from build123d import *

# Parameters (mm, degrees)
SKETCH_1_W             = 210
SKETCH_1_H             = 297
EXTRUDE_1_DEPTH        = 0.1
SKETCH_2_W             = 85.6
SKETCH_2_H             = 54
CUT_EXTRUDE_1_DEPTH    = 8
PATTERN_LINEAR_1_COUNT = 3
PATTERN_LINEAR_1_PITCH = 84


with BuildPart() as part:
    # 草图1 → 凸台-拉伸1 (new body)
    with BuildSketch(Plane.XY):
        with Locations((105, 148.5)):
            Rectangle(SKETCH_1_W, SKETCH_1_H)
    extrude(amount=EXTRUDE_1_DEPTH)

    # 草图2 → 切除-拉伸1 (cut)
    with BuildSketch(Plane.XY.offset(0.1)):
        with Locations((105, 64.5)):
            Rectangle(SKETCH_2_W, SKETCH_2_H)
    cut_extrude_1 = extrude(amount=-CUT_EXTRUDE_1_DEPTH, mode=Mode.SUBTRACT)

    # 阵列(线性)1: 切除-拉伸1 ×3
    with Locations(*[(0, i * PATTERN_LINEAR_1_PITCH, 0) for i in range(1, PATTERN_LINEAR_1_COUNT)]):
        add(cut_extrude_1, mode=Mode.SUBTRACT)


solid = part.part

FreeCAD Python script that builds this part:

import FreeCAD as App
import Part
import Sketcher
from FreeCAD import Vector
Q = App.Units.Quantity


def add_polygon(sketch, points):
    """Adds a closed chain of lines whose ends are joined by coincident constraints."""
    first, n = sketch.GeometryCount, len(points)
    for a, b in zip(points, points[1:] + points[:1]):
        sketch.addGeometry(Part.LineSegment(App.Vector(*a, 0), App.Vector(*b, 0)), False)
    for i in range(n):
        sketch.addConstraint(Sketcher.Constraint("Coincident", first + i, 2, first + (i + 1) % n, 1))

doc = App.newDocument("Part")
body = doc.addObject("PartDesign::Body", "Body")

# Sketch on XY plane
sketch1 = body.newObject("Sketcher::SketchObject", "Sketch")
sketch1.AttachmentSupport = (doc.getObject("XY_Plane"), [""])
sketch1.MapMode = "FlatFace"
add_polygon(sketch1, [(0, 297), (0, 0), (210, 0), (210, 297)])  # lines 0-3
sketch1.addConstraint(Sketcher.Constraint("Vertical", 0))
sketch1.addConstraint(Sketcher.Constraint("Horizontal", 1))
sketch1.addConstraint(Sketcher.Constraint("Vertical", 2))
sketch1.addConstraint(Sketcher.Constraint("Horizontal", 3))
sketch1.addConstraint(Sketcher.Constraint("Coincident", 0, 2, -1, 1))
sketch1.addConstraint(Sketcher.Constraint("DistanceX", 1, 1, 1, 2, Q("210 mm")))
sketch1.addConstraint(Sketcher.Constraint("DistanceY", 0, 2, 0, 1, Q("297 mm")))
pad1 = body.newObject("PartDesign::Pad", "Pad")
pad1.Profile = sketch1
pad1.Length = 0.1

# Sketch on XY plane
sketch2 = body.newObject("Sketcher::SketchObject", "Sketch001")
sketch2.AttachmentSupport = (doc.getObject("XY_Plane"), [""])
sketch2.MapMode = "FlatFace"
sketch2.AttachmentOffset = App.Placement(Vector(0, 0, 0.1), App.Rotation())
add_polygon(sketch2, [(62, 92), (62, 38), (148, 38), (148, 92)])  # lines 0-3
sketch2.addConstraint(Sketcher.Constraint("Vertical", 0))
sketch2.addConstraint(Sketcher.Constraint("Horizontal", 1))
sketch2.addConstraint(Sketcher.Constraint("Vertical", 2))
sketch2.addConstraint(Sketcher.Constraint("Horizontal", 3))
sketch2.addConstraint(Sketcher.Constraint("DistanceY", 0, 2, 0, 1, Q("54 mm")))
sketch2.addConstraint(Sketcher.Constraint("DistanceX", 1, 1, 1, 2, Q("85.6 mm")))
sketch2.addConstraint(Sketcher.Constraint("DistanceX", -1, 1, 0, 2, Q("62.2 mm")))
sketch2.addConstraint(Sketcher.Constraint("DistanceY", -1, 1, 0, 2, Q("37.5 mm")))
pocket1 = body.newObject("PartDesign::Pocket", "Pocket")
pocket1.Profile = sketch2
pocket1.Length = 8
doc.recompute()

linearpattern = body.newObject("PartDesign::LinearPattern", "LinearPattern")
linearpattern.Originals = [pocket1]
linearpattern.Direction = (doc.getObject("Y_Axis"), [""])
linearpattern.Mode = "offset"
linearpattern.Offset = 84
linearpattern.Occurrences = 3
body.Tip = linearpattern

doc.recompute()
